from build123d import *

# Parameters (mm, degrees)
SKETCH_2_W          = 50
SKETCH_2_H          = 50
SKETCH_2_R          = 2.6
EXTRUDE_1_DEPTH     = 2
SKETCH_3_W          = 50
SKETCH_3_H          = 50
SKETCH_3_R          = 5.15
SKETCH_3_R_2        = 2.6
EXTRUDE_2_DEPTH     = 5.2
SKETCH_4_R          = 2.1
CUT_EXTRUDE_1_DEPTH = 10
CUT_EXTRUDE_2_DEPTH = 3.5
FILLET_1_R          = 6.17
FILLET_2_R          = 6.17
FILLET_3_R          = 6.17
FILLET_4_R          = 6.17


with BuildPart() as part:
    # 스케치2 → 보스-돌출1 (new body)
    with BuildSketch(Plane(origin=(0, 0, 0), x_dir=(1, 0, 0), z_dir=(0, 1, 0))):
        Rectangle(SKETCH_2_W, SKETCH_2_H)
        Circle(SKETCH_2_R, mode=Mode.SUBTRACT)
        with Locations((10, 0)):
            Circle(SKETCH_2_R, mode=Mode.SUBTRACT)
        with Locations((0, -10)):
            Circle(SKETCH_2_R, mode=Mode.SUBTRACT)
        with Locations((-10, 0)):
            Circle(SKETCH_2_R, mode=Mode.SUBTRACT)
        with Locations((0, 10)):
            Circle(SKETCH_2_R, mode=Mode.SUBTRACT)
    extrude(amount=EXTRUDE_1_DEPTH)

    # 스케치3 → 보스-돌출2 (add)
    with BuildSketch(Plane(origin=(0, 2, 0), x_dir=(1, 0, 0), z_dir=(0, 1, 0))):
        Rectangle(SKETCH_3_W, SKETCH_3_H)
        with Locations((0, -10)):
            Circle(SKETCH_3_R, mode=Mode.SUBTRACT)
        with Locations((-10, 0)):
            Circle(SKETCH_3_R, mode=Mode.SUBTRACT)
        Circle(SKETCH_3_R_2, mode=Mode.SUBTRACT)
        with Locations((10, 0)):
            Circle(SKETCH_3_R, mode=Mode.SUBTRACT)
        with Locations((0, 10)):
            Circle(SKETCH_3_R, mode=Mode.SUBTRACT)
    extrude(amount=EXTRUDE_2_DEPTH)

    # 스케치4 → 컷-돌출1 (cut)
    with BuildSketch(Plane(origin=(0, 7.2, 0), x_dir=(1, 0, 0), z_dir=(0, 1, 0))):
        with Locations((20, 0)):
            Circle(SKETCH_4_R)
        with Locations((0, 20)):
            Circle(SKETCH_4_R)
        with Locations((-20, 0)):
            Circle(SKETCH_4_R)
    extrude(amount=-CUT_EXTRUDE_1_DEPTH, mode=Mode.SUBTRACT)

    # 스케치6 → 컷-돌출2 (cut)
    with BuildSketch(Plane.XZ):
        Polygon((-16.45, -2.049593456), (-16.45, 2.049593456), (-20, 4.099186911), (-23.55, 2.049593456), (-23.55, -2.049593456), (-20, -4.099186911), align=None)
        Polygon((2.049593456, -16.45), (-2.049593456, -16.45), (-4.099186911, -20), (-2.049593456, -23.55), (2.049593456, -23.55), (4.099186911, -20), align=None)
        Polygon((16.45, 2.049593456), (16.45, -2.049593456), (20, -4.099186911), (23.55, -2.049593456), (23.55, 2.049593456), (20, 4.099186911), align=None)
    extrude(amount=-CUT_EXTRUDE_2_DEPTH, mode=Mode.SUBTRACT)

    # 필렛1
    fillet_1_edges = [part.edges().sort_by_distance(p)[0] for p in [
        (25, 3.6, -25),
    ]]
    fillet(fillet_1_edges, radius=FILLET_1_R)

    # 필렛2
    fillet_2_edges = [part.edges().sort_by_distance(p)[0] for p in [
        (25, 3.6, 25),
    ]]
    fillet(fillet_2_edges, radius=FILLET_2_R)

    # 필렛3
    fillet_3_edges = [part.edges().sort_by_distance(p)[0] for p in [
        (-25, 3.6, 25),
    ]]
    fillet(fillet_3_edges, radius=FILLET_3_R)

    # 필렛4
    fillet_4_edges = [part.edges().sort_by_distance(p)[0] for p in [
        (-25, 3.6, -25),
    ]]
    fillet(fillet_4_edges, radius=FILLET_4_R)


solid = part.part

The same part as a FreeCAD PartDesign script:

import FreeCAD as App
import Part
import Sketcher

V = App.Vector
Q = App.Units.Quantity


def edges_at(feature, points):
    """Names of the edges that pass closest to the given points."""
    edges = feature.Shape.Edges
    near = lambda p: min(range(len(edges)), key=lambda i: edges[i].distToShape(Part.Vertex(*p))[0])
    return sorted({f"Edge{near(p) + 1}" for p in points})


def add_polygon(sketch, points):
    """Adds a closed chain of lines whose ends are joined by coincident constraints."""
    first, n = sketch.GeometryCount, len(points)
    for a, b in zip(points, points[1:] + points[:1]):
        sketch.addGeometry(Part.LineSegment(App.Vector(*a, 0), App.Vector(*b, 0)), False)
    for i in range(n):
        sketch.addConstraint(Sketcher.Constraint("Coincident", first + i, 2, first + (i + 1) % n, 1))

doc = App.newDocument("Part")
params = doc.addObject("Spreadsheet::Sheet", "Params")
for row, (alias, value) in enumerate([
    ("sketch1_diameter", "5.2 mm"),
    ("sketch1_width", "50 mm"),
    ("pad1_length", "2 mm"),
    ("sketch2_diameter", "10.3 mm"),
    ("sketch2_diameter2", "5.2 mm"),
    ("sketch2_width", "50 mm"),
    ("pad2_length", "5.2 mm"),
    ("sketch3_diameter", "4.2 mm"),
    ("pocket1_length", "10 mm"),
    ("pocket2_length", "3.5 mm"),
    ("fillet_radius", "6.17 mm"),
    ("fillet2_radius", "6.17 mm"),
    ("fillet3_radius", "6.17 mm"),
    ("fillet4_radius", "6.17 mm"),
], start=1):
    params.set(f"A{row}", alias)
    params.set(f"B{row}", "=" + value)
    params.setAlias(f"B{row}", alias)

body = doc.addObject("PartDesign::Body", "Body")

sketch1 = doc.addObject("Sketcher::SketchObject", "Sketch")
body.addObject(sketch1)
sketch1.AttachmentSupport = (doc.XZ_Plane, [""])
sketch1.MapMode = "FlatFace"
add_polygon(sketch1, [(-25, -25), (-25, 25), (25, 25), (25, -25)])
sketch1.addGeometry(Part.Circle(V(0, 10, 0), V(0, 0, 1), 2.6), False)
sketch1.addGeometry(Part.Circle(V(-10, 0, 0), V(0, 0, 1), 2.6), False)
sketch1.addGeometry(Part.Circle(V(0, 0, 0), V(0, 0, 1), 2.6), False)
sketch1.addGeometry(Part.Circle(V(10, 0, 0), V(0, 0, 1), 2.6), False)
sketch1.addGeometry(Part.Circle(V(0, -10, 0), V(0, 0, 1), 2.6), False)
sketch1.addConstraint([
    Sketcher.Constraint("Vertical", 0),
    Sketcher.Constraint("Horizontal", 1),
    Sketcher.Constraint("Vertical", 2),
    Sketcher.Constraint("Horizontal", 3),
    Sketcher.Constraint("Coincident", 6, 3, -1, 1),
    Sketcher.Constraint("Equal", 4, 5),
    Sketcher.Constraint("Equal", 5, 6),
    Sketcher.Constraint("Equal", 6, 7),
    Sketcher.Constraint("Equal", 7, 8),
    Sketcher.Constraint("Symmetric", 5, 3, 7, 3, -1, 1),
    Sketcher.Constraint("Symmetric", 4, 3, 8, 3, -1, 1),
    Sketcher.Constraint("Symmetric", 0, 2, 2, 2, -1, 1),
    Sketcher.Constraint("PointOnObject", 4, 3, -2),
    Sketcher.Constraint("PointOnObject", 5, 3, -1),
    Sketcher.Constraint("Equal", 3, 0),
    Sketcher.Constraint("Diameter", 4, 5.2),
    Sketcher.Constraint("DistanceX", 1, 1, 1, 2, 50.0),
    Sketcher.Constraint("DistanceY", -1, 1, 4, 3, 10.0),
    Sketcher.Constraint("DistanceX", 5, 3, -1, 1, 10.0),
])
sketch1.setExpression("Constraints[19]", "Params.sketch1_diameter")
sketch1.setExpression("Constraints[20]", "Params.sketch1_width")
pad1 = doc.addObject("PartDesign::Pad", "Pad")
body.addObject(pad1)
pad1.Profile = sketch1
pad1.setExpression("Length", "Params.pad1_length")
pad1.Reversed = True

sketch2 = doc.addObject("Sketcher::SketchObject", "Sketch001")
body.addObject(sketch2)
sketch2.AttachmentSupport = (doc.XZ_Plane, [""])
sketch2.MapMode = "FlatFace"
sketch2.AttachmentOffset = App.Placement(V(0, 0, -2), App.Rotation())
add_polygon(sketch2, [(-25, -25), (-25, 25), (25, 25), (25, -25)])
sketch2.addGeometry(Part.Circle(V(0, 10, 0), V(0, 0, 1), 5.2), False)
sketch2.addGeometry(Part.Circle(V(-10, 0, 0), V(0, 0, 1), 5.2), False)
sketch2.addGeometry(Part.Circle(V(0, 0, 0), V(0, 0, 1), 2.6), False)
sketch2.addGeometry(Part.Circle(V(10, 0, 0), V(0, 0, 1), 5.2), False)
sketch2.addGeometry(Part.Circle(V(0, -10, 0), V(0, 0, 1), 5.2), False)
sketch2.addConstraint([
    Sketcher.Constraint("Vertical", 0),
    Sketcher.Constraint("Horizontal", 1),
    Sketcher.Constraint("Vertical", 2),
    Sketcher.Constraint("Horizontal", 3),
    Sketcher.Constraint("Coincident", 6, 3, -1, 1),
    Sketcher.Constraint("Equal", 4, 5),
    Sketcher.Constraint("Equal", 5, 7),
    Sketcher.Constraint("Equal", 7, 8),
    Sketcher.Constraint("Symmetric", 5, 3, 7, 3, -1, 1),
    Sketcher.Constraint("Symmetric", 4, 3, 8, 3, -1, 1),
    Sketcher.Constraint("Symmetric", 0, 2, 2, 2, -1, 1),
    Sketcher.Constraint("PointOnObject", 4, 3, -2),
    Sketcher.Constraint("PointOnObject", 5, 3, -1),
    Sketcher.Constraint("Equal", 3, 0),
    Sketcher.Constraint("Diameter", 4, 10.3),
    Sketcher.Constraint("Diameter", 6, 5.2),
    Sketcher.Constraint("DistanceX", 1, 1, 1, 2, 50.0),
    Sketcher.Constraint("DistanceY", -1, 1, 4, 3, 10.0),
    Sketcher.Constraint("DistanceX", 5, 3, -1, 1, 10.0),
])
sketch2.setExpression("Constraints[18]", "Params.sketch2_diameter")
sketch2.setExpression("Constraints[19]", "Params.sketch2_diameter2")
sketch2.setExpression("Constraints[20]", "Params.sketch2_width")
pad2 = doc.addObject("PartDesign::Pad", "Pad001")
body.addObject(pad2)
pad2.Profile = sketch2
pad2.setExpression("Length", "Params.pad2_length")
pad2.Reversed = True

sketch3 = doc.addObject("Sketcher::SketchObject", "Sketch002")
body.addObject(sketch3)
sketch3.AttachmentSupport = (doc.XZ_Plane, [""])
sketch3.MapMode = "FlatFace"
sketch3.AttachmentOffset = App.Placement(V(0, 0, -7.2), App.Rotation())
sketch3.addGeometry([
    Part.Circle(V(20, 0, 0), V(0, 0, 1), 2.1),
    Part.Circle(V(0, -20, 0), V(0, 0, 1), 2.1),
    Part.Circle(V(-20, 0, 0), V(0, 0, 1), 2.1),
], False)
sketch3.addConstraint([
    Sketcher.Constraint("Equal", 0, 1),
    Sketcher.Constraint("Equal", 1, 2),
    Sketcher.Constraint("Symmetric", 0, 3, 2, 3, -1, 1),
    Sketcher.Constraint("PointOnObject", 0, 3, -1),
    Sketcher.Constraint("PointOnObject", 1, 3, -2),
    Sketcher.Constraint("Diameter", 0, 4.2),
    Sketcher.Constraint("DistanceX", -1, 1, 0, 3, 20.0),
    Sketcher.Constraint("DistanceY", 1, 3, -1, 1, 20.0),
])
sketch3.setExpression("Constraints[5]", "Params.sketch3_diameter")
pocket1 = doc.addObject("PartDesign::Pocket", "Pocket")
body.addObject(pocket1)
pocket1.Profile = sketch3
pocket1.setExpression("Length", "Params.pocket1_length")
pocket1.Reversed = True

sketch4 = doc.addObject("Sketcher::SketchObject", "Sketch003")
body.addObject(sketch4)
sketch4.AttachmentSupport = (doc.XZ_Plane, [""])
sketch4.MapMode = "FlatFace"
add_polygon(sketch4, [(-16.4, -2), (-16.4, 2), (-20, 4.1), (-23.6, 2), (-23.6, -2), (-20, -4.1)])
add_polygon(sketch4, [(2, -16.4), (-2, -16.4), (-4.1, -20), (-2, -23.6), (2, -23.6), (4.1, -20)])
add_polygon(sketch4, [(16.4, 2), (16.4, -2), (20, -4.1), (23.6, -2), (23.6, 2), (20, 4.1)])
sketch4.addConstraint([
    Sketcher.Constraint("Vertical", 0),
    Sketcher.Constraint("Vertical", 3),
    Sketcher.Constraint("Horizontal", 6),
    Sketcher.Constraint("Horizontal", 9),
    Sketcher.Constraint("Vertical", 12),
    Sketcher.Constraint("Vertical", 15),
    Sketcher.Constraint("Symmetric", 0, 2, 12, 2, -1, 1),
    Sketcher.Constraint("Symmetric", 1, 2, 13, 2, -1, 1),
    Sketcher.Constraint("Symmetric", 2, 2, 14, 2, -1, 1),
    Sketcher.Constraint("Symmetric", 4, 2, 16, 2, -1, 1),
    Sketcher.Constraint("Symmetric", 7, 2, 10, 2, -2),
    Sketcher.Constraint("Symmetric", 4, 2, 13, 2, -2),
    Sketcher.Constraint("Parallel", 1, 4),
    Sketcher.Constraint("Parallel", 2, 5),
    Sketcher.Constraint("Perpendicular", 4, 7),
    Sketcher.Constraint("Perpendicular", 5, 8),
    Sketcher.Constraint("Parallel", 7, 10),
    Sketcher.Constraint("Parallel", 8, 11),
    Sketcher.Constraint("Parallel", 13, 16),
    Sketcher.Constraint("Parallel", 14, 17),
    Sketcher.Constraint("Horizontal", 0, 2, 2, 2),
    Sketcher.Constraint("Horizontal", 3, 2, 5, 2),
    Sketcher.Constraint("Vertical", 6, 2, 8, 2),
    Sketcher.Constraint("Equal", 9, 0),
    Sketcher.Constraint("Equal", 5, 7),
    Sketcher.Constraint("Angle", 1, Q("150 deg")),
    Sketcher.Constraint("DistanceX", 1, 2, -1, 1, 20.0),
    Sketcher.Constraint("DistanceY", 7, 2, -1, 1, 20.0),
    Sketcher.Constraint("DistanceX", 2, 2, 0, 2, 7.1),
    Sketcher.Constraint("DistanceX", 6, 2, 6, 1, 4.099187),
])
pocket2 = doc.addObject("PartDesign::Pocket", "Pocket001")
body.addObject(pocket2)
pocket2.Profile = sketch4
pocket2.setExpression("Length", "Params.pocket2_length")
doc.recompute()

fillet = doc.addObject("PartDesign::Fillet", "Fillet")
body.addObject(fillet)
fillet.Base = (pocket2, edges_at(pocket2, [(25, 3.6, -25)]))
fillet.setExpression("Radius", "Params.fillet_radius")
doc.recompute()

fillet2 = doc.addObject("PartDesign::Fillet", "Fillet001")
body.addObject(fillet2)
fillet2.Base = (fillet, edges_at(fillet, [(25, 3.6, 25)]))
fillet2.setExpression("Radius", "Params.fillet2_radius")
doc.recompute()

fillet3 = doc.addObject("PartDesign::Fillet", "Fillet002")
body.addObject(fillet3)
fillet3.Base = (fillet2, edges_at(fillet2, [(-25, 3.6, 25)]))
fillet3.setExpression("Radius", "Params.fillet3_radius")
doc.recompute()

fillet4 = doc.addObject("PartDesign::Fillet", "Fillet003")
body.addObject(fillet4)
fillet4.Base = (fillet3, edges_at(fillet3, [(-25, 3.6, -25)]))
fillet4.setExpression("Radius", "Params.fillet4_radius")

doc.recompute()
